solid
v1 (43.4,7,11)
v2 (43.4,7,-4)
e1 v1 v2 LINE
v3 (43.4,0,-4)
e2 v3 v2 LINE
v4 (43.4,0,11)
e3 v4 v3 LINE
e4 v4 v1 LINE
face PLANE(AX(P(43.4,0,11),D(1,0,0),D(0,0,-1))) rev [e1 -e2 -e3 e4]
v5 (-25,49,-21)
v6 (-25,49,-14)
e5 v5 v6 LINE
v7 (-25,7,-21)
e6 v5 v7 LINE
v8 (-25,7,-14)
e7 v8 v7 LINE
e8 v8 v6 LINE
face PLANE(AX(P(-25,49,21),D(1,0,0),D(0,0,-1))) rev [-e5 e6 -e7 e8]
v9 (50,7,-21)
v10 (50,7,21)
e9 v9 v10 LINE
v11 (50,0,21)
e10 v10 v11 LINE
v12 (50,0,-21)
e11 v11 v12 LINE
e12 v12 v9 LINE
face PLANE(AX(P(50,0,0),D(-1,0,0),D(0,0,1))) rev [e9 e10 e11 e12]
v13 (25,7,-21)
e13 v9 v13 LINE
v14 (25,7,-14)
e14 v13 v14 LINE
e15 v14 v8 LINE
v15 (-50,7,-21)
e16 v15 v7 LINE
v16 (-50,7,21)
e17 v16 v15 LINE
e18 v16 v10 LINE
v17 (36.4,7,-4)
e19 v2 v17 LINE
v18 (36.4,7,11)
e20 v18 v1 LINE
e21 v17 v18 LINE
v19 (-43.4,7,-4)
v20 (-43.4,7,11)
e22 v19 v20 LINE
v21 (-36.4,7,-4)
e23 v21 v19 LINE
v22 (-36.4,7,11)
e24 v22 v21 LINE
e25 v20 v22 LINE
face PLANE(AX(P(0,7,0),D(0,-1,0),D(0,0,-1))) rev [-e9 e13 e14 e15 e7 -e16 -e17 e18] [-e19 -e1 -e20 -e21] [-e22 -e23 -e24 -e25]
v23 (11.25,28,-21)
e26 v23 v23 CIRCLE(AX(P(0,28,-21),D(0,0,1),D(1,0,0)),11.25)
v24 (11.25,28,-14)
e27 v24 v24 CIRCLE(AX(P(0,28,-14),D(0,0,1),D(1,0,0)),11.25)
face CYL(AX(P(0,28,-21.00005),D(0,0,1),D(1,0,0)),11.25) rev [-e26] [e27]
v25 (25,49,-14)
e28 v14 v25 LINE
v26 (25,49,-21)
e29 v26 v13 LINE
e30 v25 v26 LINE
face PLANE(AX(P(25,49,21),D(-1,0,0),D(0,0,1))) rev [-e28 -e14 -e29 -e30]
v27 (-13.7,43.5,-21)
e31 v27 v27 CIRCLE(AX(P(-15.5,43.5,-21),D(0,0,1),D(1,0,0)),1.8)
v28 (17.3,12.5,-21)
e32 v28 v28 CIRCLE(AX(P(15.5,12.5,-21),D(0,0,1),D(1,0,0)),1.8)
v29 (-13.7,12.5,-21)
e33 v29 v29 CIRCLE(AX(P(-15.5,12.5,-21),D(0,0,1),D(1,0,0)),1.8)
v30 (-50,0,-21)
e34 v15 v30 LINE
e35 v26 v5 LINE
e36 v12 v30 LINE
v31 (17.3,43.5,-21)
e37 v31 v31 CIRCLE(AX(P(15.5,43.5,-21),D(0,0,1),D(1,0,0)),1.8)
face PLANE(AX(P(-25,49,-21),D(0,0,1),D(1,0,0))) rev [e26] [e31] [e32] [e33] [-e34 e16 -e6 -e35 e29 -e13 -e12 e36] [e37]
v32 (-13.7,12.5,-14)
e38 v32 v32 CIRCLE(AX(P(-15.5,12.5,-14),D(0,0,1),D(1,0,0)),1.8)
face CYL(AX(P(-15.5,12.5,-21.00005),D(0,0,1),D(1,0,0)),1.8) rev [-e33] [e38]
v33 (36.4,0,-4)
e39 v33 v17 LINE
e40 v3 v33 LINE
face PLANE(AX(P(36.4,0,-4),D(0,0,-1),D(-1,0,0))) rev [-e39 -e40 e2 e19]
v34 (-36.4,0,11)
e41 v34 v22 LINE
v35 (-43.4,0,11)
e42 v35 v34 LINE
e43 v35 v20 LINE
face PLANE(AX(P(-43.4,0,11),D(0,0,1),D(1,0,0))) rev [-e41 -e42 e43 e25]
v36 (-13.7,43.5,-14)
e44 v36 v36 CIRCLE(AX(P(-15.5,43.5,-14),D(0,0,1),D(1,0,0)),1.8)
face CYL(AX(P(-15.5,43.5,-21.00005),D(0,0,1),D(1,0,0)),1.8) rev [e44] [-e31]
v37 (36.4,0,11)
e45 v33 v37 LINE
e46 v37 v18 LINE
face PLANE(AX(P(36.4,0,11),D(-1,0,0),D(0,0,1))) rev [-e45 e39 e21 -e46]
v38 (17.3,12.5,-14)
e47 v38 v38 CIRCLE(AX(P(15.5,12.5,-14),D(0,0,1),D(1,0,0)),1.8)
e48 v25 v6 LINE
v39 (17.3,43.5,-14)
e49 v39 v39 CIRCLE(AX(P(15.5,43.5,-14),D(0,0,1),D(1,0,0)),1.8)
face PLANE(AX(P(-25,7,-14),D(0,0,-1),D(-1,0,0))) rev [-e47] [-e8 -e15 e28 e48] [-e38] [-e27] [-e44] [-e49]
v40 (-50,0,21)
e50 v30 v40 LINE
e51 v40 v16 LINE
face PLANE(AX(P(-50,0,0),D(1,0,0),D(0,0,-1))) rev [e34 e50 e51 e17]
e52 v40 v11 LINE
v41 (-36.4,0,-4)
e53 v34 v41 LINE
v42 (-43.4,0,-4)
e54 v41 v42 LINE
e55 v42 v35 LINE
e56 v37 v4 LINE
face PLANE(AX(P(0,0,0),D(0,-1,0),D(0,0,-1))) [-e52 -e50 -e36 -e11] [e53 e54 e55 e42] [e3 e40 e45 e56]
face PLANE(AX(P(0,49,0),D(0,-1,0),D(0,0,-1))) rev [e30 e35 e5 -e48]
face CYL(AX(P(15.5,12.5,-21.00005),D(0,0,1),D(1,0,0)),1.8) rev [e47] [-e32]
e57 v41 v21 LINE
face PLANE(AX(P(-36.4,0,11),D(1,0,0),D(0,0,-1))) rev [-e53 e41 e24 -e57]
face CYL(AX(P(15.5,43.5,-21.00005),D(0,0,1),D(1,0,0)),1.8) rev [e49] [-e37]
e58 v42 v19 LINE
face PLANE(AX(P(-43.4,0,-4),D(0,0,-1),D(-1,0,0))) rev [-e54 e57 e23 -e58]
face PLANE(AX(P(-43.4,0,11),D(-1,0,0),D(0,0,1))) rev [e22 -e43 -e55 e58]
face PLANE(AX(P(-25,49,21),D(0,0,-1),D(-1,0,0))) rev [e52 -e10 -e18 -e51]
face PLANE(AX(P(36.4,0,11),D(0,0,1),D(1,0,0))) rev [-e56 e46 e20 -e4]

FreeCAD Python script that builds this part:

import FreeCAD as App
import Part
import Sketcher
from FreeCAD import Vector
Q = App.Units.Quantity


def add_polygon(sketch, points):
    """Adds a closed chain of lines whose ends are joined by coincident constraints."""
    first, n = sketch.GeometryCount, len(points)
    for a, b in zip(points, points[1:] + points[:1]):
        sketch.addGeometry(Part.LineSegment(App.Vector(*a, 0), App.Vector(*b, 0)), False)
    for i in range(n):
        sketch.addConstraint(Sketcher.Constraint("Coincident", first + i, 2, first + (i + 1) % n, 1))

doc = App.newDocument("Part")
body = doc.addObject("PartDesign::Body", "Body")

# Sketch on XZ plane
sketch1 = doc.addObject("Sketcher::SketchObject", "Sketch")
body.addObject(sketch1)
sketch1.AttachmentSupport = (doc.XZ_Plane, [""])
sketch1.MapMode = "FlatFace"
add_polygon(sketch1, [(-25, -21), (-25, 21), (25, 21), (25, -21)])  # lines 0-3
sketch1.addConstraint(Sketcher.Constraint("Vertical", 0))
sketch1.addConstraint(Sketcher.Constraint("Horizontal", 1))
sketch1.addConstraint(Sketcher.Constraint("Vertical", 2))
sketch1.addConstraint(Sketcher.Constraint("Horizontal", 3))
sketch1.addConstraint(Sketcher.Constraint("Symmetric", 0, 2, 2, 2, -1, 1))
sketch1.addConstraint(Sketcher.Constraint("DistanceX", 1, 1, 1, 2, Q("50 mm")))
sketch1.addConstraint(Sketcher.Constraint("DistanceY", 0, 1, 0, 2, Q("42 mm")))
pad1 = doc.addObject("PartDesign::Pad", "Pad")
body.addObject(pad1)
pad1.Profile = sketch1
pad1.Length = 49
pad1.Reversed = True

# Sketch on XZ plane
sketch2 = doc.addObject("Sketcher::SketchObject", "Sketch001")
body.addObject(sketch2)
sketch2.AttachmentSupport = (doc.XZ_Plane, [""])
sketch2.MapMode = "FlatFace"
sketch2.AttachmentOffset = App.Placement(Vector(0, 0, -49), App.Rotation())
add_polygon(sketch2, [(-25, -14), (-25, 21), (25, 21), (25, -14)])  # lines 0-3
sketch2.addConstraint(Sketcher.Constraint("Vertical", 0))
sketch2.addConstraint(Sketcher.Constraint("Horizontal", 1))
sketch2.addConstraint(Sketcher.Constraint("Vertical", 2))
sketch2.addConstraint(Sketcher.Constraint("Horizontal", 3))
sketch2.addConstraint(Sketcher.Constraint("DistanceX", 1, 1, 1, 2, Q("50 mm")))
sketch2.addConstraint(Sketcher.Constraint("DistanceY", 0, 1, 0, 2, Q("35 mm")))
sketch2.addConstraint(Sketcher.Constraint("DistanceX", 0, 2, -1, 1, Q("25 mm")))
sketch2.addConstraint(Sketcher.Constraint("DistanceY", -1, 1, 0, 2, Q("21 mm")))
pocket1 = doc.addObject("PartDesign::Pocket", "Pocket")
body.addObject(pocket1)
pocket1.Profile = sketch2
pocket1.Length = 42
pocket1.Reversed = True

# Sketch on YZ plane
sketch3 = doc.addObject("Sketcher::SketchObject", "Sketch002")
body.addObject(sketch3)
sketch3.AttachmentSupport = (doc.YZ_Plane, [""])
sketch3.MapMode = "FlatFace"
sketch3.AttachmentOffset = App.Placement(Vector(0, 0, 25), App.Rotation())
add_polygon(sketch3, [(7, 21), (0, 21), (0, -21), (7, -21)])  # lines 0-3
sketch3.addConstraint(Sketcher.Constraint("Horizontal", 0))
sketch3.addConstraint(Sketcher.Constraint("Vertical", 1))
sketch3.addConstraint(Sketcher.Constraint("Horizontal", 2))
sketch3.addConstraint(Sketcher.Constraint("Vertical", 3))
sketch3.addConstraint(Sketcher.Constraint("Symmetric", 0, 2, 1, 2, -1, 1))
sketch3.addConstraint(Sketcher.Constraint("DistanceX", 0, 2, 0, 1, Q("7 mm")))
sketch3.addConstraint(Sketcher.Constraint("DistanceY", 1, 2, 1, 1, Q("42 mm")))
pad2 = doc.addObject("PartDesign::Pad", "Pad001")
body.addObject(pad2)
pad2.Profile = sketch3
pad2.Length = 25

# Sketch on YZ plane
sketch4 = doc.addObject("Sketcher::SketchObject", "Sketch003")
body.addObject(sketch4)
sketch4.AttachmentSupport = (doc.YZ_Plane, [""])
sketch4.MapMode = "FlatFace"
sketch4.AttachmentOffset = App.Placement(Vector(0, 0, -25), App.Rotation())
add_polygon(sketch4, [(7, -21), (0, -21), (0, 21), (7, 21)])  # lines 0-3
sketch4.addConstraint(Sketcher.Constraint("Horizontal", 0))
sketch4.addConstraint(Sketcher.Constraint("Vertical", 1))
sketch4.addConstraint(Sketcher.Constraint("Horizontal", 2))
sketch4.addConstraint(Sketcher.Constraint("Vertical", 3))
sketch4.addConstraint(Sketcher.Constraint("Symmetric", 0, 2, 1, 2, -1, 1))
sketch4.addConstraint(Sketcher.Constraint("DistanceX", 0, 2, 0, 1, Q("7 mm")))
sketch4.addConstraint(Sketcher.Constraint("DistanceY", 1, 1, 1, 2, Q("42 mm")))
pad3 = doc.addObject("PartDesign::Pad", "Pad002")
body.addObject(pad3)
pad3.Profile = sketch4
pad3.Length = 25
pad3.Reversed = True

# Sketch on XY plane
sketch5 = doc.addObject("Sketcher::SketchObject", "Sketch004")
body.addObject(sketch5)
sketch5.AttachmentSupport = (doc.XY_Plane, [""])
sketch5.MapMode = "FlatFace"
sketch5.AttachmentOffset = App.Placement(Vector(0, 0, -14), App.Rotation())
sketch5.addGeometry(Part.Circle(Vector(0, 28, 0), Vector(0, 0, 1), 11.2), False)
sketch5.addGeometry(Part.Circle(Vector(-15.5, 43.5, 0), Vector(0, 0, 1), 1.8), False)
sketch5.addGeometry(Part.Circle(Vector(15.5, 43.5, 0), Vector(0, 0, 1), 1.8), False)
sketch5.addGeometry(Part.Circle(Vector(-15.5, 12.5, 0), Vector(0, 0, 1), 1.8), False)
sketch5.addGeometry(Part.Circle(Vector(15.5, 12.5, 0), Vector(0, 0, 1), 1.8), False)
sketch5.addConstraint(Sketcher.Constraint("Equal", 1, 2))
sketch5.addConstraint(Sketcher.Constraint("Equal", 2, 3))
sketch5.addConstraint(Sketcher.Constraint("Equal", 3, 4))
sketch5.addConstraint(Sketcher.Constraint("Symmetric", 1, 3, 2, 3, -2))
sketch5.addConstraint(Sketcher.Constraint("Symmetric", 3, 3, 4, 3, -2))
sketch5.addConstraint(Sketcher.Constraint("PointOnObject", 0, 3, -2))
sketch5.addConstraint(Sketcher.Constraint("Vertical", 1, 3, 3, 3))
sketch5.addConstraint(Sketcher.Constraint("Diameter", 0, Q("22.5 mm")))
sketch5.addConstraint(Sketcher.Constraint("Diameter", 1, Q("3.6 mm")))
sketch5.addConstraint(Sketcher.Constraint("DistanceY", -1, 1, 0, 3, Q("28 mm")))
sketch5.addConstraint(Sketcher.Constraint("DistanceX", 1, 3, 2, 3, Q("31 mm")))
sketch5.addConstraint(Sketcher.Constraint("DistanceY", 3, 3, 1, 3, Q("31 mm")))
sketch5.addConstraint(Sketcher.Constraint("DistanceY", -1, 1, 1, 3, Q("43.5 mm")))
pocket2 = doc.addObject("PartDesign::Pocket", "Pocket001")
body.addObject(pocket2)
pocket2.Profile = sketch5
pocket2.Type = "ThroughAll"

# Sketch on XZ plane
sketch6 = doc.addObject("Sketcher::SketchObject", "Sketch005")
body.addObject(sketch6)
sketch6.AttachmentSupport = (doc.XZ_Plane, [""])
sketch6.MapMode = "FlatFace"
sketch6.AttachmentOffset = App.Placement(Vector(0, 0, -7), App.Rotation())
add_polygon(sketch6, [(-43, -4), (-43, 11), (-36, 11), (-36, -4)])  # lines 0-3
add_polygon(sketch6, [(36, -4), (36, 11), (43, 11), (43, -4)])  # lines 4-7
sketch6.addConstraint(Sketcher.Constraint("Vertical", 0))
sketch6.addConstraint(Sketcher.Constraint("Horizontal", 1))
sketch6.addConstraint(Sketcher.Constraint("Vertical", 2))
sketch6.addConstraint(Sketcher.Constraint("Horizontal", 3))
sketch6.addConstraint(Sketcher.Constraint("Vertical", 4))
sketch6.addConstraint(Sketcher.Constraint("Horizontal", 5))
sketch6.addConstraint(Sketcher.Constraint("Vertical", 6))
sketch6.addConstraint(Sketcher.Constraint("Horizontal", 7))
sketch6.addConstraint(Sketcher.Constraint("Symmetric", 1, 2, 4, 2, -2))
sketch6.addConstraint(Sketcher.Constraint("Symmetric", 3, 2, 6, 2, -2))
sketch6.addConstraint(Sketcher.Constraint("DistanceX", 1, 1, 1, 2, Q("7 mm")))
sketch6.addConstraint(Sketcher.Constraint("DistanceY", 0, 1, 0, 2, Q("15 mm")))
sketch6.addConstraint(Sketcher.Constraint("DistanceY", -1, 1, 0, 2, Q("11 mm")))
sketch6.addConstraint(Sketcher.Constraint("DistanceX", 0, 2, -1, 1, Q("43.4 mm")))
pocket3 = doc.addObject("PartDesign::Pocket", "Pocket002")
body.addObject(pocket3)
pocket3.Profile = sketch6
pocket3.Type = "ThroughAll"
pocket3.Reversed = True

doc.recompute()
